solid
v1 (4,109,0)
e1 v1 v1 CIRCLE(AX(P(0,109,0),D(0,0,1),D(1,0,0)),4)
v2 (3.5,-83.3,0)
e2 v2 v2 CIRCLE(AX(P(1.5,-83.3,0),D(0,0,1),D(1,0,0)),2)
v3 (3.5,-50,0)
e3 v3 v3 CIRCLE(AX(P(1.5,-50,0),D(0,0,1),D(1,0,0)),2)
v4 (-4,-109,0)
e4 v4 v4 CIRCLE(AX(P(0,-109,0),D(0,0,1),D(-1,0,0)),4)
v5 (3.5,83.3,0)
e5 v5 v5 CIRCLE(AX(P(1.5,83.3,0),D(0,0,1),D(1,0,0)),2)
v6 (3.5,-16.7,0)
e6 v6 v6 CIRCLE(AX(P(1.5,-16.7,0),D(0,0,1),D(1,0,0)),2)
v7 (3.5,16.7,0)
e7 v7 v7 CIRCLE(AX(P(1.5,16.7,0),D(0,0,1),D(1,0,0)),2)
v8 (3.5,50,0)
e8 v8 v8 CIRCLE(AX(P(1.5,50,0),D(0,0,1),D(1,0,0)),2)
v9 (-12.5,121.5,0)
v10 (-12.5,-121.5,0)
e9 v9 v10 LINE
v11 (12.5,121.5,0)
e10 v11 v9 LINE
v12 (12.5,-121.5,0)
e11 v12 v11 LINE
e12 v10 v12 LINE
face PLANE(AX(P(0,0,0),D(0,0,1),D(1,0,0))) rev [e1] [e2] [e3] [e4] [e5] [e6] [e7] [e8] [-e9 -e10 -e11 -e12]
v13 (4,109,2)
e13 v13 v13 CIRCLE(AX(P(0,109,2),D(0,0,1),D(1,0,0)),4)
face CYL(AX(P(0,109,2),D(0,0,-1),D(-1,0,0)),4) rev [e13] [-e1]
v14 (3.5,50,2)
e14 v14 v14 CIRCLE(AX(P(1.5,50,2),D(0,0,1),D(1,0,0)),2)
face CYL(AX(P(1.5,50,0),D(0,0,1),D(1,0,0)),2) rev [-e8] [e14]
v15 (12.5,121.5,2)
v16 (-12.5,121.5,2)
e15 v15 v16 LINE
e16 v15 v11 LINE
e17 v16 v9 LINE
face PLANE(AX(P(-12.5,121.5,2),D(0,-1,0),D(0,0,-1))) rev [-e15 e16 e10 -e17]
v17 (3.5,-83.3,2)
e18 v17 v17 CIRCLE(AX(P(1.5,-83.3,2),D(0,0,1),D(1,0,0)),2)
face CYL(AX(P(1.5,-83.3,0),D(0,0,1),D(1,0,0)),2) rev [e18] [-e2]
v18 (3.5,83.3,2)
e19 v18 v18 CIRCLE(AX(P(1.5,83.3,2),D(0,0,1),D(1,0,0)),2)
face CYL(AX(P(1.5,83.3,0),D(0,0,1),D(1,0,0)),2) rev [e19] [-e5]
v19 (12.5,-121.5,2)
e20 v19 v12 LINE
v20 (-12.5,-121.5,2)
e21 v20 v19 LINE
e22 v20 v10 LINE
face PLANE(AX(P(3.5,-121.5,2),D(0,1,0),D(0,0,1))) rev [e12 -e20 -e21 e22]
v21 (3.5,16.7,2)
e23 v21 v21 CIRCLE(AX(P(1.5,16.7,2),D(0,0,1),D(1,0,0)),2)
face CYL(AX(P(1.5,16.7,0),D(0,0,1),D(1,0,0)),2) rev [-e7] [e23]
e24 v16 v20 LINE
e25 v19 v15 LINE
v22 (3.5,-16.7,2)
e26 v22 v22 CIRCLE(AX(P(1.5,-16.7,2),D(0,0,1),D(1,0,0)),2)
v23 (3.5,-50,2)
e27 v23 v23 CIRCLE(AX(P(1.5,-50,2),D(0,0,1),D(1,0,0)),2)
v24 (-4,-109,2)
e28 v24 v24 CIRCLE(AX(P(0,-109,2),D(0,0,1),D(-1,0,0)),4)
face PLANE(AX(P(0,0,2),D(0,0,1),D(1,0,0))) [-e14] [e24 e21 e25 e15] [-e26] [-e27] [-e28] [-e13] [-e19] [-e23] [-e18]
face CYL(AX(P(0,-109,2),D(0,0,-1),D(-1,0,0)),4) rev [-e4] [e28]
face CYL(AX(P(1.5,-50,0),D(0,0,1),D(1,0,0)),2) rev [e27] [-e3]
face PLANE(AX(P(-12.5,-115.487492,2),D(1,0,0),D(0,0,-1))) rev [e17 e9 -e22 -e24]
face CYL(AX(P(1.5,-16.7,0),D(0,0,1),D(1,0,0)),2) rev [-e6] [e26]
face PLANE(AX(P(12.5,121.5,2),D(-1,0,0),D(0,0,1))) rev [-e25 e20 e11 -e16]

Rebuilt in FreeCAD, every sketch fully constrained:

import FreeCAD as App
import Part
import Sketcher


def add_polygon(sketch, points):
    """Adds a closed chain of lines whose ends are joined by coincident constraints."""
    first, n = sketch.GeometryCount, len(points)
    for a, b in zip(points, points[1:] + points[:1]):
        sketch.addGeometry(Part.LineSegment(App.Vector(*a, 0), App.Vector(*b, 0)), False)
    for i in range(n):
        sketch.addConstraint(Sketcher.Constraint("Coincident", first + i, 2, first + (i + 1) % n, 1))

doc = App.newDocument("Part")
params = doc.addObject("Spreadsheet::Sheet", "Params")
for row, (alias, value) in enumerate([
    ("sketch1_diameter", "8 mm"),
    ("sketch1_width", "25 mm"),
    ("sketch1_height", "243 mm"),
    ("pad1_length", "2 mm"),
    ("sketch2_diameter", "4 mm"),
    ("pocket1_length", "2 mm"),
], start=1):
    params.set(f"A{row}", alias)
    params.set(f"B{row}", "=" + value)
    params.setAlias(f"B{row}", alias)

body = doc.addObject("PartDesign::Body", "Body")

# Sketch on XY plane
sketch1 = body.newObject("Sketcher::SketchObject", "Sketch")
sketch1.AttachmentSupport = (doc.getObject("XY_Plane"), [""])
sketch1.MapMode = "FlatFace"
add_polygon(sketch1, [(12.5, 121.5), (-12.5, 121.5), (-12.5, -121.5), (12.5, -121.5)])  # lines 0-3
sketch1.addGeometry(Part.Circle(App.Vector(0, -109, 0), App.Vector(0, 0, 1), 4), False)  # 4
sketch1.addGeometry(Part.Circle(App.Vector(0, 109, 0), App.Vector(0, 0, 1), 4), False)  # 5
sketch1.addConstraint(Sketcher.Constraint("Horizontal", 0))
sketch1.addConstraint(Sketcher.Constraint("Vertical", 1))
sketch1.addConstraint(Sketcher.Constraint("Horizontal", 2))
sketch1.addConstraint(Sketcher.Constraint("Vertical", 3))
sketch1.addConstraint(Sketcher.Constraint("Equal", 4, 5))
sketch1.addConstraint(Sketcher.Constraint("Symmetric", 4, 3, 5, 3, -1, 1))
sketch1.addConstraint(Sketcher.Constraint("Symmetric", 0, 2, 2, 2, -1, 1))
sketch1.addConstraint(Sketcher.Constraint("PointOnObject", 4, 3, -2))
sketch1.addConstraint(Sketcher.Constraint("Diameter", 4, 8.0))
sketch1.addConstraint(Sketcher.Constraint("DistanceX", 0, 2, 0, 1, 25.0))
sketch1.addConstraint(Sketcher.Constraint("DistanceY", 1, 2, 1, 1, 243.0))
sketch1.addConstraint(Sketcher.Constraint("DistanceY", 4, 3, -1, 1, 109.0))
sketch1.setExpression("Constraints[12]", "Params.sketch1_diameter")
sketch1.setExpression("Constraints[13]", "Params.sketch1_width")
sketch1.setExpression("Constraints[14]", "Params.sketch1_height")
pad1 = body.newObject("PartDesign::Pad", "Pad")
pad1.Profile = sketch1
pad1.setExpression("Length", "Params.pad1_length")

# Sketch on XY plane
sketch2 = body.newObject("Sketcher::SketchObject", "Sketch001")
sketch2.AttachmentSupport = (doc.getObject("XY_Plane"), [""])
sketch2.MapMode = "FlatFace"
sketch2.AttachmentOffset = App.Placement(App.Vector(0, 0, 2), App.Rotation())
sketch2.addGeometry(Part.Circle(App.Vector(1.5, 83.3, 0), App.Vector(0, 0, 1), 2), False)
sketch2.addGeometry(Part.Circle(App.Vector(1.5, 50, 0), App.Vector(0, 0, 1), 2), False)
sketch2.addGeometry(Part.Circle(App.Vector(1.5, 16.7, 0), App.Vector(0, 0, 1), 2), False)
sketch2.addGeometry(Part.Circle(App.Vector(1.5, -16.7, 0), App.Vector(0, 0, 1), 2), False)
sketch2.addGeometry(Part.Circle(App.Vector(1.5, -50, 0), App.Vector(0, 0, 1), 2), False)
sketch2.addGeometry(Part.Circle(App.Vector(1.5, -83.3, 0), App.Vector(0, 0, 1), 2), False)
sketch2.addConstraint(Sketcher.Constraint("Equal", 0, 1))
sketch2.addConstraint(Sketcher.Constraint("Equal", 1, 2))
sketch2.addConstraint(Sketcher.Constraint("Equal", 2, 3))
sketch2.addConstraint(Sketcher.Constraint("Equal", 3, 4))
sketch2.addConstraint(Sketcher.Constraint("Equal", 4, 5))
sketch2.addConstraint(Sketcher.Constraint("Symmetric", 2, 3, 3, 3, -1))
sketch2.addConstraint(Sketcher.Constraint("Symmetric", 1, 3, 4, 3, -1))
sketch2.addConstraint(Sketcher.Constraint("Symmetric", 0, 3, 5, 3, -1))
sketch2.addConstraint(Sketcher.Constraint("Vertical", 0, 3, 1, 3))
sketch2.addConstraint(Sketcher.Constraint("Vertical", 1, 3, 2, 3))
sketch2.addConstraint(Sketcher.Constraint("Diameter", 0, 4.0))
sketch2.addConstraint(Sketcher.Constraint("DistanceY", -1, 1, 1, 3, 50.0))
sketch2.addConstraint(Sketcher.Constraint("DistanceY", 3, 3, 0, 3, 100.0))
sketch2.addConstraint(Sketcher.Constraint("DistanceX", -1, 1, 0, 3, 1.5))
sketch2.addConstraint(Sketcher.Constraint("DistanceY", -1, 1, 0, 3, 83.3))
sketch2.setExpression("Constraints[10]", "Params.sketch2_diameter")
pocket1 = body.newObject("PartDesign::Pocket", "Pocket")
pocket1.Profile = sketch2
pocket1.setExpression("Length", "Params.pocket1_length")

doc.recompute()
